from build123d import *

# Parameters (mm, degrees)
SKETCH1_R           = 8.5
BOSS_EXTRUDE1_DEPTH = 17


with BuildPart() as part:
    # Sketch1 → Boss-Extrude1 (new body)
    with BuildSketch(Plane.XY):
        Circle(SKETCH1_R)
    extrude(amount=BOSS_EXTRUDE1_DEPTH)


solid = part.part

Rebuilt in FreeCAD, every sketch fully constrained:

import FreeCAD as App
import Part
import Sketcher
from FreeCAD import Vector

doc = App.newDocument("Part")
body = doc.addObject("PartDesign::Body", "Body")

# Sketch on XY plane
sketch1 = doc.addObject("Sketcher::SketchObject", "Sketch")
body.addObject(sketch1)
sketch1.AttachmentSupport = (doc.XY_Plane, [""])
sketch1.MapMode = "FlatFace"
sketch1.addGeometry(Part.Circle(Vector(0, 0, 0), Vector(0, 0, 1), 8), False)
sketch1.addConstraint(Sketcher.Constraint("Coincident", 0, 3, -1, 1))
sketch1.addConstraint(Sketcher.Constraint("Diameter", 0, 17.0))
pad1 = doc.addObject("PartDesign::Pad", "Pad")
body.addObject(pad1)
pad1.Profile = sketch1
pad1.Length = 17

doc.recompute()
